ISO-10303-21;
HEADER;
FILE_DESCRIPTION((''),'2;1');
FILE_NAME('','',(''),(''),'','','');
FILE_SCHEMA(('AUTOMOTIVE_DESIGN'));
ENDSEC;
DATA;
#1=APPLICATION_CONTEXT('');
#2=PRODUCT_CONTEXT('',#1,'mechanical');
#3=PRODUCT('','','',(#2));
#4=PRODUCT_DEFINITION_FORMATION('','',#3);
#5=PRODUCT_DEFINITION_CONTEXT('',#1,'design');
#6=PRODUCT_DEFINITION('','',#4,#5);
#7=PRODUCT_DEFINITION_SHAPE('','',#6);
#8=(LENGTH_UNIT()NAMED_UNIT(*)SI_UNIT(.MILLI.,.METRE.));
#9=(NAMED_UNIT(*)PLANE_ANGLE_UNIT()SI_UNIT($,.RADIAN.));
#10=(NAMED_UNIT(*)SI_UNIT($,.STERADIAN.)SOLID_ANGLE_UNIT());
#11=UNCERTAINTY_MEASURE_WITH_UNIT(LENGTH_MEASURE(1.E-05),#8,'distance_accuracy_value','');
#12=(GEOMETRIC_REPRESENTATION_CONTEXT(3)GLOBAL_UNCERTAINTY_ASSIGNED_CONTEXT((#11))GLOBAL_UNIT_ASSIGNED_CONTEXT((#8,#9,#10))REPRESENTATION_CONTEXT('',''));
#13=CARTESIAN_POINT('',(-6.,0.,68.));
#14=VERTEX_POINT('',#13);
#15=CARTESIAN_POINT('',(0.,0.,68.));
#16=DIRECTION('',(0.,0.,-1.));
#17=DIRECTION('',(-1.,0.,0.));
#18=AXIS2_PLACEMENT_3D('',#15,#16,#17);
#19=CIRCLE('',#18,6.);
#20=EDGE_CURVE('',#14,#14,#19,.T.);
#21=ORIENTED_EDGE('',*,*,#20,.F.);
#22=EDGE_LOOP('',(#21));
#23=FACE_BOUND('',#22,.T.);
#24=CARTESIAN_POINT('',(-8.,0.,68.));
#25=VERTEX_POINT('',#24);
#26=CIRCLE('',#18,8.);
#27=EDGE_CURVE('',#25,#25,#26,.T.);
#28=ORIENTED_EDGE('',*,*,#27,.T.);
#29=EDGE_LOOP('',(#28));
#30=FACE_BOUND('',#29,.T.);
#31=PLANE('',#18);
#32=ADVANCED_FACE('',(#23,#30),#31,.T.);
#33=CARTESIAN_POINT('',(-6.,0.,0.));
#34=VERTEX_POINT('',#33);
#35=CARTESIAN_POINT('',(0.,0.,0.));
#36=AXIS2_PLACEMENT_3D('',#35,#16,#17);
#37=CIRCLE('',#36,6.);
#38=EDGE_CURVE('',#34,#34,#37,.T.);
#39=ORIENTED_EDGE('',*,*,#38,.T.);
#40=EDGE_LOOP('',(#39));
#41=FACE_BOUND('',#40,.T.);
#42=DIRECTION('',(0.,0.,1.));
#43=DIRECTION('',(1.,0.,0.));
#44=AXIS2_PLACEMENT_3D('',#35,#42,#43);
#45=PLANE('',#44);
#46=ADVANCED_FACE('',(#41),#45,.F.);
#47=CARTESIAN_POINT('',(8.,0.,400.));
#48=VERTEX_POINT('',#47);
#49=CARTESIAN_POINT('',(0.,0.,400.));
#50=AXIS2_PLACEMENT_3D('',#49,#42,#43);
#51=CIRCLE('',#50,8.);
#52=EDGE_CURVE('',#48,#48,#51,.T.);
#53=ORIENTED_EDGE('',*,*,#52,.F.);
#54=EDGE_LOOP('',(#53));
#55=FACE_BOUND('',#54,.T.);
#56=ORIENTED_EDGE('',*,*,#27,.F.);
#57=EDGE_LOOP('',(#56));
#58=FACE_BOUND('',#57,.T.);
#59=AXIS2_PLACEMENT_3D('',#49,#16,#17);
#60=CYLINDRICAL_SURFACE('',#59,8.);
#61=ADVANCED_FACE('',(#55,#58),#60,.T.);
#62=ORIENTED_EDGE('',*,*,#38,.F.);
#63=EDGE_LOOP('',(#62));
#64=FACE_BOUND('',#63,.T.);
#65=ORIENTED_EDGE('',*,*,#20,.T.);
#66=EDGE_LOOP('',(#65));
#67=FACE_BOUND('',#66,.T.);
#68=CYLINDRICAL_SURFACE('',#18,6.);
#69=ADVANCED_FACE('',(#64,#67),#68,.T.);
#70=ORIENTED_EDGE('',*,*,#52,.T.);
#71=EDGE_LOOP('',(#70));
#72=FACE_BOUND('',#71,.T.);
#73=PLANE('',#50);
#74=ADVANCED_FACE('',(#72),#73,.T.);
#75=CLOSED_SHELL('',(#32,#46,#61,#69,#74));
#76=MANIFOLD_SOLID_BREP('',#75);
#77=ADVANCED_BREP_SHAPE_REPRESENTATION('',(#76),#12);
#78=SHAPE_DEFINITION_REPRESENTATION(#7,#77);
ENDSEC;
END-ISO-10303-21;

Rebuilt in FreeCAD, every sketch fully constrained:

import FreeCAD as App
import Part
import Sketcher
from FreeCAD import Vector

doc = App.newDocument("Part")
body = doc.addObject("PartDesign::Body", "Body")

# Sketch on XY plane
sketch1 = body.newObject("Sketcher::SketchObject", "Sketch")
sketch1.AttachmentSupport = (doc.getObject("XY_Plane"), [""])
sketch1.MapMode = "FlatFace"
sketch1.addGeometry(Part.Circle(Vector(0, 0, 0), Vector(0, 0, 1), 8), False)
sketch1.addConstraint([
    Sketcher.Constraint("Coincident", 0, 3, -1, 1),
    Sketcher.Constraint("Diameter", 0, 16.0),
])
pad1 = body.newObject("PartDesign::Pad", "Pad")
pad1.Profile = sketch1
pad1.Length = 400

# Sketch on XY plane
sketch2 = body.newObject("Sketcher::SketchObject", "Sketch001")
sketch2.AttachmentSupport = (doc.getObject("XY_Plane"), [""])
sketch2.MapMode = "FlatFace"
sketch2.addGeometry([
    Part.Circle(Vector(0, 0, 0), Vector(0, 0, 1), 11),
    Part.Circle(Vector(0, 0, 0), Vector(0, 0, 1), 6),
], False)
sketch2.addConstraint([
    Sketcher.Constraint("Coincident", 0, 3, -1, 1),
    Sketcher.Constraint("Coincident", 1, 3, -1, 1),
    Sketcher.Constraint("Diameter", 1, 12.0),
    Sketcher.Constraint("Diameter", 0, 21.332374),
])
pocket1 = body.newObject("PartDesign::Pocket", "Pocket")
pocket1.Profile = sketch2
pocket1.Length = 68
pocket1.Reversed = True

doc.recompute()
